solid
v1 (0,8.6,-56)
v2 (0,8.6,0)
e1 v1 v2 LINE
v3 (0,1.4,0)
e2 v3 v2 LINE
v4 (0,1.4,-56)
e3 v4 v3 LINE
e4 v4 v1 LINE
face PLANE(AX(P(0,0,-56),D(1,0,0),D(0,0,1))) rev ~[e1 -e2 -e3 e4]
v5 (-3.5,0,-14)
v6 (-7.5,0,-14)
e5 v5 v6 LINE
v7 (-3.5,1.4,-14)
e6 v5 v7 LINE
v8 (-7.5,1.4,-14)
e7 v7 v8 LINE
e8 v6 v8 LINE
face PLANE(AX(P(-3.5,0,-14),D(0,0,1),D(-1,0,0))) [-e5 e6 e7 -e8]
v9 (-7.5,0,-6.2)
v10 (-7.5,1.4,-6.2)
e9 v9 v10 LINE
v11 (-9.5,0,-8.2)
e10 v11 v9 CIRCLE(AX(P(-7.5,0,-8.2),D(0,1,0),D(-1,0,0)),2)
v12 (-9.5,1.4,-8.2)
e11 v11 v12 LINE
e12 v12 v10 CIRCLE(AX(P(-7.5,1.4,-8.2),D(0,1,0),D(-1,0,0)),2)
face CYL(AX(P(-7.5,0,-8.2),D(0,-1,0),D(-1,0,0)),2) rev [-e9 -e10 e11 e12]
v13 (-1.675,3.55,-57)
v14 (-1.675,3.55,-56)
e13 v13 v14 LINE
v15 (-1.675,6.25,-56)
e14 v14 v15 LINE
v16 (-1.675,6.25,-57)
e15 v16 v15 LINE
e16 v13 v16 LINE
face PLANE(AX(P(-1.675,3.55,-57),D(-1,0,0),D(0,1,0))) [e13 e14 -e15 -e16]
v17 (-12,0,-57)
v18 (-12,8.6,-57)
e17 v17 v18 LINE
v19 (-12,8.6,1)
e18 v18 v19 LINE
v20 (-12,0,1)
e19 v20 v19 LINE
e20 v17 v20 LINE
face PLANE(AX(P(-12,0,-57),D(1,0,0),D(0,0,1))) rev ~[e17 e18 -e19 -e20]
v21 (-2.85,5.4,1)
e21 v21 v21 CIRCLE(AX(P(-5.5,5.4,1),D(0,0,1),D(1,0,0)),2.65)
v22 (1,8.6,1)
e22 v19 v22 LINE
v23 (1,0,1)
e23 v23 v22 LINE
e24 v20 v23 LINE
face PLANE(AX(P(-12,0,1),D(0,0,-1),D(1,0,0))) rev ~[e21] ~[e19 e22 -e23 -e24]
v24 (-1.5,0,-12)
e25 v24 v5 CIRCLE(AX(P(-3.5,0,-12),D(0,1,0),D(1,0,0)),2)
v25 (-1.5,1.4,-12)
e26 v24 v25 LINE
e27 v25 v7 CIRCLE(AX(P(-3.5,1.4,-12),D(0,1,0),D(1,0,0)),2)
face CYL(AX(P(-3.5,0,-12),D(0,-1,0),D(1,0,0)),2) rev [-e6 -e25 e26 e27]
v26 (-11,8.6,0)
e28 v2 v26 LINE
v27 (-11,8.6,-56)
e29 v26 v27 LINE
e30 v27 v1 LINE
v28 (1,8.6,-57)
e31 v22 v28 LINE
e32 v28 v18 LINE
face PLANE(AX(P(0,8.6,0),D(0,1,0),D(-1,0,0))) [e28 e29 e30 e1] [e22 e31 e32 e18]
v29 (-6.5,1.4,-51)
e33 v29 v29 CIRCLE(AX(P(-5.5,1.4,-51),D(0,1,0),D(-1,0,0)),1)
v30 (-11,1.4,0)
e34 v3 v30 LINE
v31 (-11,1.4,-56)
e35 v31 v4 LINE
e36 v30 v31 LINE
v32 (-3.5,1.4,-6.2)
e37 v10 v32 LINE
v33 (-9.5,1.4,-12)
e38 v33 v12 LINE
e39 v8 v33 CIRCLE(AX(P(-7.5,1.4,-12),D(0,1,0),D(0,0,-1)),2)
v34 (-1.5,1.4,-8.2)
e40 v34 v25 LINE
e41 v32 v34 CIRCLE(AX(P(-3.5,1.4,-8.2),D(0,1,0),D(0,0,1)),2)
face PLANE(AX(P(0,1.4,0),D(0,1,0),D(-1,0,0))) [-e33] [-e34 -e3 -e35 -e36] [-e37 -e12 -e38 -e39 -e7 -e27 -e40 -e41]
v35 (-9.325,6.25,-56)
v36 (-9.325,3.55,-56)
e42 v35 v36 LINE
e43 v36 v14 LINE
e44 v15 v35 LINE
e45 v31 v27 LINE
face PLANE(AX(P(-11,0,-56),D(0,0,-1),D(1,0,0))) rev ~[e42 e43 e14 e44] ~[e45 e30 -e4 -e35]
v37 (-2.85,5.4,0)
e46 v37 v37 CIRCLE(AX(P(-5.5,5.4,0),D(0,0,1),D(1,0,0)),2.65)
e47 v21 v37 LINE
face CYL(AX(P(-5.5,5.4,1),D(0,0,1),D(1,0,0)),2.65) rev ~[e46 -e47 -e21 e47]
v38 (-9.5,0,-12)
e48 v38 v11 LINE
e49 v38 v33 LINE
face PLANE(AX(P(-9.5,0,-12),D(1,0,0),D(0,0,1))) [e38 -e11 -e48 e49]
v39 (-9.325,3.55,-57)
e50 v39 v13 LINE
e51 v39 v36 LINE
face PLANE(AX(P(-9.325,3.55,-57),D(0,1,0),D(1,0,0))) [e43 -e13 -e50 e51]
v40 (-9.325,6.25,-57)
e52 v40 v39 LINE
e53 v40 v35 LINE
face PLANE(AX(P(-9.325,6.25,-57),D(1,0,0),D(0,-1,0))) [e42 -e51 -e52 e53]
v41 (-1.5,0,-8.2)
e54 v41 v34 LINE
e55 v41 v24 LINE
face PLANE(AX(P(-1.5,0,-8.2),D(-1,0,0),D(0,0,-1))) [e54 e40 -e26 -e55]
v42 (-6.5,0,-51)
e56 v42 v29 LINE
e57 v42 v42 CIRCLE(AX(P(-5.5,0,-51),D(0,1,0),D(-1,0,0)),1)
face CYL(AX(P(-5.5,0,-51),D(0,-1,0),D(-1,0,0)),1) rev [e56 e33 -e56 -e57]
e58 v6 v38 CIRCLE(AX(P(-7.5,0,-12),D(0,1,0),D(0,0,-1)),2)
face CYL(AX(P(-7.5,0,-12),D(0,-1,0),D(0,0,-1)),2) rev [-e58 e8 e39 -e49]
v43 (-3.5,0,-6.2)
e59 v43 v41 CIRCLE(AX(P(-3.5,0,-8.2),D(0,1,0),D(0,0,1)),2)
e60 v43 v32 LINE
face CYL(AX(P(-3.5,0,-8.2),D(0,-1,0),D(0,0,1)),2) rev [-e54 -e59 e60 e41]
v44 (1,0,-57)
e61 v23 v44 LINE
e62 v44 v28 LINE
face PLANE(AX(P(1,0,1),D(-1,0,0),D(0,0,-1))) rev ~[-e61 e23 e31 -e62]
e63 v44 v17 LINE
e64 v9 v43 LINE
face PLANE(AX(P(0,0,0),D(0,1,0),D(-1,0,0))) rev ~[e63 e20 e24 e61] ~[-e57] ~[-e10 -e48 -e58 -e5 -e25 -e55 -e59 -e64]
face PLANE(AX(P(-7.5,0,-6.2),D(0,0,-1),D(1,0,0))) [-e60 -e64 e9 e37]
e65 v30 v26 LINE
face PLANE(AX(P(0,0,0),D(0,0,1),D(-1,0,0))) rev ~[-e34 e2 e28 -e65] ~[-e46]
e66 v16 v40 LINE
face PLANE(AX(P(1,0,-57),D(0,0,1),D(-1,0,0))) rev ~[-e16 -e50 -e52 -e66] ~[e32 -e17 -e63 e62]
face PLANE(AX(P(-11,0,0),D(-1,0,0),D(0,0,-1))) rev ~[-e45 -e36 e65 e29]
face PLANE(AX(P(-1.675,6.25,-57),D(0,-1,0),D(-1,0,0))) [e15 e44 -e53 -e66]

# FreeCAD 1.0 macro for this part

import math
import FreeCAD as App
import Part
import Sketcher
from FreeCAD import Vector
Q = App.Units.Quantity


def add_polygon(sketch, points):
    """Adds a closed chain of lines whose ends are joined by coincident constraints."""
    first, n = sketch.GeometryCount, len(points)
    for a, b in zip(points, points[1:] + points[:1]):
        sketch.addGeometry(Part.LineSegment(App.Vector(*a, 0), App.Vector(*b, 0)), False)
    for i in range(n):
        sketch.addConstraint(Sketcher.Constraint("Coincident", first + i, 2, first + (i + 1) % n, 1))

doc = App.newDocument("Part")
body = doc.addObject("PartDesign::Body", "Body")

# Sketch on XZ plane
sketch1 = body.newObject("Sketcher::SketchObject", "Sketch")
sketch1.AttachmentSupport = (doc.getObject("XZ_Plane"), [""])
sketch1.MapMode = "FlatFace"
add_polygon(sketch1, [(-11, 0), (0, 0), (0, -56), (-11, -56)])  # lines 0-3
sketch1.addGeometry(Part.Circle(Vector(-5.5, -51, 0), Vector(0, 0, 1), 1), False)  # 4
sketch1.addGeometry(Part.LineSegment(Vector(-3.5, -6.2, 0), Vector(-7.5, -6.2, 0)), False)  # 5
sketch1.addGeometry(Part.ArcOfCircle(Part.Circle(Vector(-7.5, -8.2, 0), Vector(0, 0, 1), 2), math.radians(90), math.radians(180)), False)  # 6
sketch1.addGeometry(Part.LineSegment(Vector(-9.5, -8.2, 0), Vector(-9.5, -12, 0)), False)  # 7
sketch1.addGeometry(Part.ArcOfCircle(Part.Circle(Vector(-7.5, -12, 0), Vector(0, 0, 1), 2), math.radians(180), math.radians(270)), False)  # 8
sketch1.addGeometry(Part.LineSegment(Vector(-7.5, -14, 0), Vector(-3.5, -14, 0)), False)  # 9
sketch1.addGeometry(Part.ArcOfCircle(Part.Circle(Vector(-3.5, -12, 0), Vector(0, 0, 1), 2), math.radians(-90), math.radians(0)), False)  # 10
sketch1.addGeometry(Part.LineSegment(Vector(-1.5, -12, 0), Vector(-1.5, -8.2, 0)), False)  # 11
sketch1.addGeometry(Part.ArcOfCircle(Part.Circle(Vector(-3.5, -8.2, 0), Vector(0, 0, 1), 2), math.radians(0), math.radians(90)), False)  # 12
sketch1.addConstraint([
    Sketcher.Constraint("Tangent", 5, 2, 6, 1),
    Sketcher.Constraint("Tangent", 6, 2, 7, 1),
    Sketcher.Constraint("Tangent", 7, 2, 8, 1),
    Sketcher.Constraint("Tangent", 8, 2, 9, 1),
    Sketcher.Constraint("Tangent", 9, 2, 10, 1),
    Sketcher.Constraint("Tangent", 10, 2, 11, 1),
    Sketcher.Constraint("Tangent", 11, 2, 12, 1),
    Sketcher.Constraint("Tangent", 12, 2, 5, 1),
    Sketcher.Constraint("Horizontal", 0),
    Sketcher.Constraint("Vertical", 1),
    Sketcher.Constraint("Horizontal", 2),
    Sketcher.Constraint("Vertical", 3),
    Sketcher.Constraint("Horizontal", 5),
    Sketcher.Constraint("Vertical", 7),
    Sketcher.Constraint("Horizontal", 9),
    Sketcher.Constraint("Vertical", 11),
    Sketcher.Constraint("Coincident", 0, 2, -1, 1),
    Sketcher.Constraint("Equal", 6, 8),
    Sketcher.Constraint("Equal", 8, 10),
    Sketcher.Constraint("Equal", 10, 12),
    Sketcher.Constraint("Diameter", 4, Q("2 mm")),
    Sketcher.Constraint("Radius", 6, Q("2 mm")),
    Sketcher.Constraint("DistanceX", 0, 1, 0, 2, Q("11 mm")),
    Sketcher.Constraint("DistanceY", 1, 2, 1, 1, Q("56 mm")),
    Sketcher.Constraint("DistanceY", 8, 2, -1, 1, Q("14 mm")),
    Sketcher.Constraint("DistanceX", 6, 3, 4, 3, Q("2 mm")),
    Sketcher.Constraint("DistanceX", 4, 3, 10, 3, Q("2 mm")),
    Sketcher.Constraint("DistanceY", 1, 2, 4, 3, Q("5 mm")),
    Sketcher.Constraint("DistanceX", 4, 3, -1, 1, Q("5.5 mm")),
    Sketcher.Constraint("DistanceY", 7, 2, 7, 1, Q("3.8 mm")),
])
pad1 = body.newObject("PartDesign::Pad", "Pad")
pad1.Profile = sketch1
pad1.Length = 1.4
pad1.Reversed = True

# Sketch on XZ plane
sketch2 = body.newObject("Sketcher::SketchObject", "Sketch001")
sketch2.AttachmentSupport = (doc.getObject("XZ_Plane"), [""])
sketch2.MapMode = "FlatFace"
add_polygon(sketch2, [(-12, -57), (-12, 1), (1, 1), (1, -57)])  # lines 0-3
add_polygon(sketch2, [(0, -56), (0, 0), (-11, 0), (-11, -56)])  # lines 4-7
sketch2.addConstraint([
    Sketcher.Constraint("Vertical", 0),
    Sketcher.Constraint("Horizontal", 1),
    Sketcher.Constraint("Vertical", 2),
    Sketcher.Constraint("Horizontal", 3),
    Sketcher.Constraint("Vertical", 4),
    Sketcher.Constraint("Horizontal", 5),
    Sketcher.Constraint("Vertical", 6),
    Sketcher.Constraint("Horizontal", 7),
    Sketcher.Constraint("Coincident", 4, 2, -1, 1),
    Sketcher.Constraint("DistanceX", 5, 2, 5, 1, Q("11 mm")),
    Sketcher.Constraint("DistanceY", 4, 1, 4, 2, Q("56 mm")),
    Sketcher.Constraint("DistanceY", -1, 1, 0, 2, Q("1 mm")),
    Sketcher.Constraint("DistanceX", -1, 1, 1, 2, Q("1 mm")),
    Sketcher.Constraint("DistanceX", 0, 2, 5, 2, Q("1 mm")),
    Sketcher.Constraint("DistanceY", 3, 2, 6, 2, Q("1 mm")),
])
pad2 = body.newObject("PartDesign::Pad", "Pad001")
pad2.Profile = sketch2
pad2.Length = 8.6
pad2.Reversed = True

# Sketch on XY plane
sketch3 = body.newObject("Sketcher::SketchObject", "Sketch002")
sketch3.AttachmentSupport = (doc.getObject("XY_Plane"), [""])
sketch3.MapMode = "FlatFace"
sketch3.AttachmentOffset = App.Placement(Vector(0, 0, 1), App.Rotation())
sketch3.addGeometry(Part.Circle(Vector(-5.5, 5.4, 0), Vector(0, 0, 1), 2.65), False)
sketch3.addConstraint([
    Sketcher.Constraint("Diameter", 0, Q("5.3 mm")),
    Sketcher.Constraint("DistanceY", -1, 1, 0, 3, Q("5.4 mm")),
    Sketcher.Constraint("DistanceX", 0, 3, -1, 1, Q("5.5 mm")),
])
pocket1 = body.newObject("PartDesign::Pocket", "Pocket")
pocket1.Profile = sketch3
pocket1.Length = 8.6

# Sketch on XY plane
sketch4 = body.newObject("Sketcher::SketchObject", "Sketch003")
sketch4.AttachmentSupport = (doc.getObject("XY_Plane"), [""])
sketch4.MapMode = "FlatFace"
sketch4.AttachmentOffset = App.Placement(Vector(0, 0, -57), App.Rotation())
add_polygon(sketch4, [(-9.325, 6.25), (-1.675, 6.25), (-1.675, 3.55), (-9.325, 3.55)])  # lines 0-3
sketch4.addConstraint([
    Sketcher.Constraint("Horizontal", 0),
    Sketcher.Constraint("Vertical", 1),
    Sketcher.Constraint("Horizontal", 2),
    Sketcher.Constraint("Vertical", 3),
    Sketcher.Constraint("DistanceY", 1, 2, 1, 1, Q("2.7 mm")),
    Sketcher.Constraint("DistanceX", 0, 1, 0, 2, Q("7.65 mm")),
    Sketcher.Constraint("DistanceY", -1, 1, 1, 2, Q("3.55 mm")),
    Sketcher.Constraint("DistanceX", 0, 2, -1, 1, Q("1.675 mm")),
])
pocket2 = body.newObject("PartDesign::Pocket", "Pocket001")
pocket2.Profile = sketch4
pocket2.Length = 8.6
pocket2.Reversed = True

doc.recompute()
